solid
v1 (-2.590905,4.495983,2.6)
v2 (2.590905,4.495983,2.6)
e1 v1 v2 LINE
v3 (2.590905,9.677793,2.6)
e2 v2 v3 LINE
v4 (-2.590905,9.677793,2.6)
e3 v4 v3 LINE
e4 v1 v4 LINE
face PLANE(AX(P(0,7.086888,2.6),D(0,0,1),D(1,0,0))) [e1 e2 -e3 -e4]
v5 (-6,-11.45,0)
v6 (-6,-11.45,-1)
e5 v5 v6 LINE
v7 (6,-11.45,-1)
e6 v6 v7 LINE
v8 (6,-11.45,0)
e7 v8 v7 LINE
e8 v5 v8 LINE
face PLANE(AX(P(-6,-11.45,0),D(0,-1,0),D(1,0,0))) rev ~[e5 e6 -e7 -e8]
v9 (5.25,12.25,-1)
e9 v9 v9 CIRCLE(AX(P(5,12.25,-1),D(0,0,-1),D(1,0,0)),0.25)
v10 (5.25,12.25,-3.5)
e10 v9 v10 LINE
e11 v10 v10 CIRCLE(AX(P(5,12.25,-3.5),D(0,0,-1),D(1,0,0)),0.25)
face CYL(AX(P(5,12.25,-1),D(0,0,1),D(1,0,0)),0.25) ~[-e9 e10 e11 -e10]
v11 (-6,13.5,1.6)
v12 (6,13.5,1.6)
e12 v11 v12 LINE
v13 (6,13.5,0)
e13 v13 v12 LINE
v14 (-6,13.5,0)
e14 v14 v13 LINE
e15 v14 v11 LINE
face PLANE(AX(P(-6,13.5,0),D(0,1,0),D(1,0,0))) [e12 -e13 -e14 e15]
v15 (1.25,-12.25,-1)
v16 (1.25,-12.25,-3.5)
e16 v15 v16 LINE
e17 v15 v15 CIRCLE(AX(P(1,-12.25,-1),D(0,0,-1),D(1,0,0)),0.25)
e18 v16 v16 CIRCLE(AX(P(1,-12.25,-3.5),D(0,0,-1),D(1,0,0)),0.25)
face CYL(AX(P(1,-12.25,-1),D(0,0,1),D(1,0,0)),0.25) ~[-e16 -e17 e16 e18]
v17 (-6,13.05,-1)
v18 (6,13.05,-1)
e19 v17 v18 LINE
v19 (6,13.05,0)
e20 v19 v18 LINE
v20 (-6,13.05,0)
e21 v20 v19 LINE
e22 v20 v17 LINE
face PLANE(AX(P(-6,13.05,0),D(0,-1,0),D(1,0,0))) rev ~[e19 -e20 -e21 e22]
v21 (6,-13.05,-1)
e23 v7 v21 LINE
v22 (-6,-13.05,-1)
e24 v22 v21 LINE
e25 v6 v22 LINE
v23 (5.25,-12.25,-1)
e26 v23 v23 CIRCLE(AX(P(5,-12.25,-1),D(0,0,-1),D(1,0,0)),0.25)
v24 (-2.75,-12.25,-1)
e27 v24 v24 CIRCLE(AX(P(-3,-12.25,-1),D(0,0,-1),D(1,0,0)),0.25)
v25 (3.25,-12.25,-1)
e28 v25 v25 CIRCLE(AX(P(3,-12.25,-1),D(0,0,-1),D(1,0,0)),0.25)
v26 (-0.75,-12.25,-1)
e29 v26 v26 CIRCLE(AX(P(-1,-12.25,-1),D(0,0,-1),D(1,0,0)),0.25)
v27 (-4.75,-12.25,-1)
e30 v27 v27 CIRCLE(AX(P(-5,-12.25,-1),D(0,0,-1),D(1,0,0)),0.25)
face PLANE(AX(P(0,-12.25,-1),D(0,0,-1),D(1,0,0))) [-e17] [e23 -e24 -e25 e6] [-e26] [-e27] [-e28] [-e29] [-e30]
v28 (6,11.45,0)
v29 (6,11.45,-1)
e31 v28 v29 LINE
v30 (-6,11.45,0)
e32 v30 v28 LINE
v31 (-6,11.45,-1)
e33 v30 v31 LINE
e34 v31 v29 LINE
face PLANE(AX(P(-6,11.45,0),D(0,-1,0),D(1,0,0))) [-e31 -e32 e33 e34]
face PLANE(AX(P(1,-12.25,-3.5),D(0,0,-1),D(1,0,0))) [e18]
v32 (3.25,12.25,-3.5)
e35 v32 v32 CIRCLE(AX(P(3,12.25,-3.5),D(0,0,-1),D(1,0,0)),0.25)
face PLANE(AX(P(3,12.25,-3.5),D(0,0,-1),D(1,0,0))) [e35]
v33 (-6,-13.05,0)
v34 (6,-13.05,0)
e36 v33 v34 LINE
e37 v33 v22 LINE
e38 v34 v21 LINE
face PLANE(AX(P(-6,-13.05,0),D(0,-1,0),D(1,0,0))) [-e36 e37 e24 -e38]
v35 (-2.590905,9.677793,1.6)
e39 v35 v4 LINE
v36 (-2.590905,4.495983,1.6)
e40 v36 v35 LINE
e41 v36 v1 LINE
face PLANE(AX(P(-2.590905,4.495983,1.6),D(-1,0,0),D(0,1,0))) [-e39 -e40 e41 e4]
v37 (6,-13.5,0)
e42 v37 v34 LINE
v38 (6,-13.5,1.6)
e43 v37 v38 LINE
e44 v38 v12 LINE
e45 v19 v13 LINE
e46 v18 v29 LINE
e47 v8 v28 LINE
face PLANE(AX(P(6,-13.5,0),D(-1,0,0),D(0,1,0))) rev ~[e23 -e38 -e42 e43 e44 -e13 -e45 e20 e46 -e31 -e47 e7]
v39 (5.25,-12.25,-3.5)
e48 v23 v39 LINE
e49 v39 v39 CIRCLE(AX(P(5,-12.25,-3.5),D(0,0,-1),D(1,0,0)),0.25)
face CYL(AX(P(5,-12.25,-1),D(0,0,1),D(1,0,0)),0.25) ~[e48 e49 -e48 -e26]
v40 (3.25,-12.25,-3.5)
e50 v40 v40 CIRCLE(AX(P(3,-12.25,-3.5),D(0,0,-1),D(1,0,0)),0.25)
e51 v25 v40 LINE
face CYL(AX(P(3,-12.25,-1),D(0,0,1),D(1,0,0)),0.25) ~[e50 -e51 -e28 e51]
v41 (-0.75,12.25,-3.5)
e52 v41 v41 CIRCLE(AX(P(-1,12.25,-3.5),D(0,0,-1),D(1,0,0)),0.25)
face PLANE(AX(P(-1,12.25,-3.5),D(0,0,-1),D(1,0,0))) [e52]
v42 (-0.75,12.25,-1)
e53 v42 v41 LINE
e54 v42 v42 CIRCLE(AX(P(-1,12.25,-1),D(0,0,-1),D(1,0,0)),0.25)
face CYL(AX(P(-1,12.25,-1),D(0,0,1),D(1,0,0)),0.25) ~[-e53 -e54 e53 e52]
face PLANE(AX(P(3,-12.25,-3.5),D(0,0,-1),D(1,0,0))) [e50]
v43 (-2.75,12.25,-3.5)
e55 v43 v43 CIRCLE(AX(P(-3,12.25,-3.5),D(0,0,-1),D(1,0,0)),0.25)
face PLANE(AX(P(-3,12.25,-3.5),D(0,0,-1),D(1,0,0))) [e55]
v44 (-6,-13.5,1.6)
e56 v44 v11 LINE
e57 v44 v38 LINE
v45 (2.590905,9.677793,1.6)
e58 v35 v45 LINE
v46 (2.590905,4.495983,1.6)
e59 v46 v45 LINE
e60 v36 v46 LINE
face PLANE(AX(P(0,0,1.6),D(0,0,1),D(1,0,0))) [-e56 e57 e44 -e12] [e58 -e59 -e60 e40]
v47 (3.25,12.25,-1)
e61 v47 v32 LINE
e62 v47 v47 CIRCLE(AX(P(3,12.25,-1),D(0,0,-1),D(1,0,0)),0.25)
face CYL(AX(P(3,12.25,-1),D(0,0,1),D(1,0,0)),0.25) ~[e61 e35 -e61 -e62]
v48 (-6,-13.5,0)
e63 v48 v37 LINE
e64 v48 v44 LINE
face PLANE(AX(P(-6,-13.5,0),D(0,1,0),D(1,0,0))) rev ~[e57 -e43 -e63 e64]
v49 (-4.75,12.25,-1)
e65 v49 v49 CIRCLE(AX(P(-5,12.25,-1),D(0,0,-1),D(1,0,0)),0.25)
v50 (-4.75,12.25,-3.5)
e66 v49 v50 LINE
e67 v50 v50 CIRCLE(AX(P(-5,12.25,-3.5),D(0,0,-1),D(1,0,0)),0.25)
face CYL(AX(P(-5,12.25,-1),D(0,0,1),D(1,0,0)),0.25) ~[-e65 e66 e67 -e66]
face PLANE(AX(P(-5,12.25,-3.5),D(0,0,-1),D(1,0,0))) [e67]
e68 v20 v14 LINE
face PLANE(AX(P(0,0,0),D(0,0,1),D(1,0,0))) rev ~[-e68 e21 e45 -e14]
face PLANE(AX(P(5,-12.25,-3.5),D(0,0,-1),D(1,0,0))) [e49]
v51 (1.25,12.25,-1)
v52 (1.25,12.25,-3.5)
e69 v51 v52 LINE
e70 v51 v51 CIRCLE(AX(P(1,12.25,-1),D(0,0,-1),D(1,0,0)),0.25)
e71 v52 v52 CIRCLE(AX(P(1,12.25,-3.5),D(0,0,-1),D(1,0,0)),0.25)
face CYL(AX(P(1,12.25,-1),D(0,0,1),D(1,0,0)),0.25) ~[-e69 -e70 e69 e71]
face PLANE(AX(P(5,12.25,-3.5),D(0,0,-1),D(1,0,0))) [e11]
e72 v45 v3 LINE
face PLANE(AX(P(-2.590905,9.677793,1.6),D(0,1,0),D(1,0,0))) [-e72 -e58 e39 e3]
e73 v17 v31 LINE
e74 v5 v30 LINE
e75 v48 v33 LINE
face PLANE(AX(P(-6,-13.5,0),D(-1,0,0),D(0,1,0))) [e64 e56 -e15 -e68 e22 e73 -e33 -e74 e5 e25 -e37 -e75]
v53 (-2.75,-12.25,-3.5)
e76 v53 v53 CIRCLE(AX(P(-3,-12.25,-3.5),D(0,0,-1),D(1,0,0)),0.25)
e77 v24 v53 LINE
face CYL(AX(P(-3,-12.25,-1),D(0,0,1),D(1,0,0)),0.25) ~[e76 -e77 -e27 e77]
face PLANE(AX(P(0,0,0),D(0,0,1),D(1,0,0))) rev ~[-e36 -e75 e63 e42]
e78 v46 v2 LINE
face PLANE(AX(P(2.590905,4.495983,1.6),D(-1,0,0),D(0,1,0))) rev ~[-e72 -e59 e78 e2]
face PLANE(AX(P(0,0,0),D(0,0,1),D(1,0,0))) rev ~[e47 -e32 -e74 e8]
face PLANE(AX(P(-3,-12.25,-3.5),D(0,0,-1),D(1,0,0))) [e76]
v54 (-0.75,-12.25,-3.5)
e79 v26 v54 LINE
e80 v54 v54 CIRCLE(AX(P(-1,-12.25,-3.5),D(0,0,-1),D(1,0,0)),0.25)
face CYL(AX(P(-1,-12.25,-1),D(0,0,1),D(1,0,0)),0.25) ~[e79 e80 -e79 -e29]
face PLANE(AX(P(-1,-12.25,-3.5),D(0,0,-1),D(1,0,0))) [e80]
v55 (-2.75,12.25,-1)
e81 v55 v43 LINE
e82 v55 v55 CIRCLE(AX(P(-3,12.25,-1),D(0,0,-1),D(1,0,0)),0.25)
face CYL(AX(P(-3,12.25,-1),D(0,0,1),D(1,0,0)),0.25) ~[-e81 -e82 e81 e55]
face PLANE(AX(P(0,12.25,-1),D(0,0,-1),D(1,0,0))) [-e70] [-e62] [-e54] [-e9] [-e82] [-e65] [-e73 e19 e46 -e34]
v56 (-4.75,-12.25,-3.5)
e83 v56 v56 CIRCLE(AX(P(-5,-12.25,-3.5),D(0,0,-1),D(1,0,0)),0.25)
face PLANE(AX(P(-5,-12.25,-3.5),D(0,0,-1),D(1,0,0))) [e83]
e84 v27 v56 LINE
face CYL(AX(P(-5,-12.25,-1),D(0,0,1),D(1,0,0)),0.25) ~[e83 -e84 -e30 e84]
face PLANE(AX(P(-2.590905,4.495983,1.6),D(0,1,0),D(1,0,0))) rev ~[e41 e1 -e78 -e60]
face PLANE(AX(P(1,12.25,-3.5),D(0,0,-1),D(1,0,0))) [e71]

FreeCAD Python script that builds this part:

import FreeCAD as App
import Part
import Sketcher
Q = App.Units.Quantity


def add_polygon(sketch, points):
    """Adds a closed chain of lines whose ends are joined by coincident constraints."""
    first, n = sketch.GeometryCount, len(points)
    for a, b in zip(points, points[1:] + points[:1]):
        sketch.addGeometry(Part.LineSegment(App.Vector(*a, 0), App.Vector(*b, 0)), False)
    for i in range(n):
        sketch.addConstraint(Sketcher.Constraint("Coincident", first + i, 2, first + (i + 1) % n, 1))

doc = App.newDocument("Part")
params = doc.addObject("Spreadsheet::Sheet", "Params")
for row, (alias, value) in enumerate([
    ("sketch1_width", "12 mm"),
    ("sketch1_height", "27 mm"),
    ("pad1_length", "1.6 mm"),
    ("sketch2_width", "12 mm"),
    ("sketch2_height", "1.6 mm"),
    ("pad2_length", "1 mm"),
    ("sketch3_diameter", "0.5 mm"),
    ("pad3_length", "2.5 mm"),
    ("pad4_length", "1 mm"),
], start=1):
    params.set(f"A{row}", alias)
    params.set(f"B{row}", "=" + value)
    params.setAlias(f"B{row}", alias)

body = doc.addObject("PartDesign::Body", "Body")

# Sketch on XY plane
sketch1 = body.newObject("Sketcher::SketchObject", "Sketch")
sketch1.AttachmentSupport = (doc.getObject("XY_Plane"), [""])
sketch1.MapMode = "FlatFace"
add_polygon(sketch1, [(-6, 13.5), (-6, -13.5), (6, -13.5), (6, 13.5)])  # lines 0-3
sketch1.addConstraint([
    Sketcher.Constraint("Vertical", 0),
    Sketcher.Constraint("Horizontal", 1),
    Sketcher.Constraint("Vertical", 2),
    Sketcher.Constraint("Horizontal", 3),
    Sketcher.Constraint("Symmetric", 0, 2, 2, 2, -1, 1),
    Sketcher.Constraint("DistanceX", 1, 1, 1, 2, Q("12 mm")),
    Sketcher.Constraint("DistanceY", 0, 2, 0, 1, Q("27 mm")),
])
sketch1.setExpression("Constraints[9]", "Params.sketch1_width")
sketch1.setExpression("Constraints[10]", "Params.sketch1_height")
pad1 = body.newObject("PartDesign::Pad", "Pad")
pad1.Profile = sketch1
pad1.setExpression("Length", "Params.pad1_length")

# Sketch on XY plane
sketch2 = body.newObject("Sketcher::SketchObject", "Sketch001")
sketch2.AttachmentSupport = (doc.getObject("XY_Plane"), [""])
sketch2.MapMode = "FlatFace"
add_polygon(sketch2, [(-6, 11.45), (-6, 13.05), (6, 13.05), (6, 11.45)])  # lines 0-3
add_polygon(sketch2, [(-6, -13.05), (-6, -11.45), (6, -11.45), (6, -13.05)])  # lines 4-7
sketch2.addConstraint([
    Sketcher.Constraint("Vertical", 0),
    Sketcher.Constraint("Horizontal", 1),
    Sketcher.Constraint("Vertical", 2),
    Sketcher.Constraint("Horizontal", 3),
    Sketcher.Constraint("Vertical", 4),
    Sketcher.Constraint("Horizontal", 5),
    Sketcher.Constraint("Vertical", 6),
    Sketcher.Constraint("Horizontal", 7),
    Sketcher.Constraint("Symmetric", 2, 2, 4, 2, -1, 1),
    Sketcher.Constraint("Symmetric", 0, 2, 6, 2, -1, 1),
    Sketcher.Constraint("Vertical", 3, 2, 4, 2),
    Sketcher.Constraint("DistanceX", 1, 1, 1, 2, Q("12 mm")),
    Sketcher.Constraint("DistanceY", 0, 1, 0, 2, Q("1.6 mm")),
    Sketcher.Constraint("DistanceY", 4, 2, 3, 2, Q("22.9 mm")),
])
sketch2.setExpression("Constraints[19]", "Params.sketch2_width")
sketch2.setExpression("Constraints[20]", "Params.sketch2_height")
pad2 = body.newObject("PartDesign::Pad", "Pad001")
pad2.Profile = sketch2
pad2.setExpression("Length", "Params.pad2_length")
pad2.Reversed = True

# Sketch on XY plane
sketch3 = body.newObject("Sketcher::SketchObject", "Sketch002")
sketch3.AttachmentSupport = (doc.getObject("XY_Plane"), [""])
sketch3.MapMode = "FlatFace"
sketch3.AttachmentOffset = App.Placement(App.Vector(0, 0, -1), App.Rotation())
sketch3.addGeometry([
    Part.Circle(App.Vector(-5, 12.25, 0), App.Vector(0, 0, 1), 0.25),  # 0
    Part.Circle(App.Vector(-5, -12.25, 0), App.Vector(0, 0, 1), 0.25),  # 1
    Part.Circle(App.Vector(-3, 12.25, 0), App.Vector(0, 0, 1), 0.25),  # 2
    Part.Circle(App.Vector(-3, -12.25, 0), App.Vector(0, 0, 1), 0.25),  # 3
    Part.Circle(App.Vector(-1, 12.25, 0), App.Vector(0, 0, 1), 0.25),  # 4
    Part.Circle(App.Vector(-1, -12.25, 0), App.Vector(0, 0, 1), 0.25),  # 5
    Part.Circle(App.Vector(1, 12.25, 0), App.Vector(0, 0, 1), 0.25),  # 6
    Part.Circle(App.Vector(1, -12.25, 0), App.Vector(0, 0, 1), 0.25),  # 7
    Part.Circle(App.Vector(3, 12.25, 0), App.Vector(0, 0, 1), 0.25),  # 8
    Part.Circle(App.Vector(3, -12.25, 0), App.Vector(0, 0, 1), 0.25),  # 9
    Part.Circle(App.Vector(5, 12.25, 0), App.Vector(0, 0, 1), 0.25),  # 10
    Part.Circle(App.Vector(5, -12.25, 0), App.Vector(0, 0, 1), 0.25),  # 11
], False)
sketch3.addConstraint([
    Sketcher.Constraint("Equal", 0, 1),
    Sketcher.Constraint("Equal", 1, 2),
    Sketcher.Constraint("Equal", 2, 3),
    Sketcher.Constraint("Equal", 3, 4),
    Sketcher.Constraint("Equal", 4, 5),
    Sketcher.Constraint("Equal", 5, 6),
    Sketcher.Constraint("Equal", 6, 7),
    Sketcher.Constraint("Equal", 7, 8),
    Sketcher.Constraint("Equal", 8, 9),
    Sketcher.Constraint("Equal", 9, 10),
    Sketcher.Constraint("Equal", 10, 11),
    Sketcher.Constraint("Symmetric", 5, 3, 6, 3, -1, 1),
    Sketcher.Constraint("Symmetric", 4, 3, 7, 3, -1, 1),
    Sketcher.Constraint("Symmetric", 3, 3, 8, 3, -1, 1),
    Sketcher.Constraint("Symmetric", 2, 3, 9, 3, -1, 1),
    Sketcher.Constraint("Symmetric", 1, 3, 10, 3, -1, 1),
    Sketcher.Constraint("Symmetric", 0, 3, 11, 3, -1, 1),
    Sketcher.Constraint("Symmetric", 4, 3, 6, 3, -2),
    Sketcher.Constraint("Symmetric", 2, 3, 8, 3, -2),
    Sketcher.Constraint("Symmetric", 0, 3, 10, 3, -2),
    Sketcher.Constraint("Horizontal", 0, 3, 2, 3),
    Sketcher.Constraint("Horizontal", 2, 3, 4, 3),
    Sketcher.Constraint("Diameter", 0, Q("0.5 mm")),
    Sketcher.Constraint("DistanceX", 0, 3, -1, 1, Q("5 mm")),
    Sketcher.Constraint("DistanceX", 2, 3, -1, 1, Q("3 mm")),
    Sketcher.Constraint("DistanceX", 4, 3, -1, 1, Q("1 mm")),
    Sketcher.Constraint("DistanceY", 1, 3, 0, 3, Q("24.5 mm")),
])
sketch3.setExpression("Constraints[22]", "Params.sketch3_diameter")
pad3 = body.newObject("PartDesign::Pad", "Pad002")
pad3.Profile = sketch3
pad3.setExpression("Length", "Params.pad3_length")
pad3.Reversed = True

# Sketch on XY plane
sketch4 = body.newObject("Sketcher::SketchObject", "Sketch003")
sketch4.AttachmentSupport = (doc.getObject("XY_Plane"), [""])
sketch4.MapMode = "FlatFace"
sketch4.AttachmentOffset = App.Placement(App.Vector(0, 0, 1.6), App.Rotation())
add_polygon(sketch4, [(-2.590905, 9.677793), (-2.590905, 4.495983), (2.590905, 4.495983), (2.590905, 9.677793)])  # lines 0-3
sketch4.addConstraint([
    Sketcher.Constraint("Vertical", 0),
    Sketcher.Constraint("Horizontal", 1),
    Sketcher.Constraint("Vertical", 2),
    Sketcher.Constraint("Horizontal", 3),
    Sketcher.Constraint("Equal", 3, 0),
    Sketcher.Constraint("DistanceX", 1, 1, 1, 2, Q("5.18181 mm")),
    Sketcher.Constraint("DistanceX", 0, 2, -1, 1, Q("2.590905 mm")),
    Sketcher.Constraint("DistanceY", -1, 1, 0, 2, Q("4.495983 mm")),
])
pad4 = body.newObject("PartDesign::Pad", "Pad003")
pad4.Profile = sketch4
pad4.setExpression("Length", "Params.pad4_length")

doc.recompute()
